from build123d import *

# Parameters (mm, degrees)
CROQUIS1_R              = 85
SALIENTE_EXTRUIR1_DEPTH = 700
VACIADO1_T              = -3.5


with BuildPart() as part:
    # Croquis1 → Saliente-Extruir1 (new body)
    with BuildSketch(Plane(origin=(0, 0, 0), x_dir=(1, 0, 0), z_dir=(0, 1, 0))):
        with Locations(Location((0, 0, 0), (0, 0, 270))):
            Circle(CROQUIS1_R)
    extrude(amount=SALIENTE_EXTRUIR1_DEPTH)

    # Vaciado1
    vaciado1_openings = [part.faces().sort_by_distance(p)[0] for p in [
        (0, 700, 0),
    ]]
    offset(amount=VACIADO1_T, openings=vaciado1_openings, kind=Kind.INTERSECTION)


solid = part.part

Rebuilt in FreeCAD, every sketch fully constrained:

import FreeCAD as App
import Part
import Sketcher


def faces_at(feature, points):
    """Names of the faces that lie closest to the given points."""
    faces = feature.Shape.Faces
    near = lambda p: min(range(len(faces)), key=lambda i: faces[i].distToShape(Part.Vertex(*p))[0])
    return sorted({f"Face{near(p) + 1}" for p in points})

doc = App.newDocument("Part")
params = doc.addObject("Spreadsheet::Sheet", "Params")
for row, (alias, value) in enumerate([
    ("sketch1_diameter", "170 mm"),
    ("pad1_length", "700 mm"),
    ("thickness_wall", "3.5 mm"),
], start=1):
    params.set(f"A{row}", alias)
    params.set(f"B{row}", "=" + value)
    params.setAlias(f"B{row}", alias)

body = doc.addObject("PartDesign::Body", "Body")

# Sketch on XZ plane
sketch1 = body.newObject("Sketcher::SketchObject", "Sketch")
sketch1.AttachmentSupport = (doc.getObject("XZ_Plane"), [""])
sketch1.MapMode = "FlatFace"
sketch1.addGeometry(Part.Circle(App.Vector(0, 0, 0), App.Vector(0, 0, 1), 85), False)
sketch1.addConstraint([
    Sketcher.Constraint("Coincident", 0, 3, -1, 1),
    Sketcher.Constraint("Diameter", 0, 170.0),
])
sketch1.setExpression("Constraints[1]", "Params.sketch1_diameter")
pad1 = body.newObject("PartDesign::Pad", "Pad")
pad1.Profile = sketch1
pad1.setExpression("Length", "Params.pad1_length")
pad1.Reversed = True
doc.recompute()

thickness = body.newObject("PartDesign::Thickness", "Thickness")
thickness.Base = (pad1, faces_at(pad1, [(0, 700, 0)]))
thickness.setExpression("Value", "Params.thickness_wall")
thickness.Reversed = True
thickness.Join = "Intersection"

doc.recompute()
